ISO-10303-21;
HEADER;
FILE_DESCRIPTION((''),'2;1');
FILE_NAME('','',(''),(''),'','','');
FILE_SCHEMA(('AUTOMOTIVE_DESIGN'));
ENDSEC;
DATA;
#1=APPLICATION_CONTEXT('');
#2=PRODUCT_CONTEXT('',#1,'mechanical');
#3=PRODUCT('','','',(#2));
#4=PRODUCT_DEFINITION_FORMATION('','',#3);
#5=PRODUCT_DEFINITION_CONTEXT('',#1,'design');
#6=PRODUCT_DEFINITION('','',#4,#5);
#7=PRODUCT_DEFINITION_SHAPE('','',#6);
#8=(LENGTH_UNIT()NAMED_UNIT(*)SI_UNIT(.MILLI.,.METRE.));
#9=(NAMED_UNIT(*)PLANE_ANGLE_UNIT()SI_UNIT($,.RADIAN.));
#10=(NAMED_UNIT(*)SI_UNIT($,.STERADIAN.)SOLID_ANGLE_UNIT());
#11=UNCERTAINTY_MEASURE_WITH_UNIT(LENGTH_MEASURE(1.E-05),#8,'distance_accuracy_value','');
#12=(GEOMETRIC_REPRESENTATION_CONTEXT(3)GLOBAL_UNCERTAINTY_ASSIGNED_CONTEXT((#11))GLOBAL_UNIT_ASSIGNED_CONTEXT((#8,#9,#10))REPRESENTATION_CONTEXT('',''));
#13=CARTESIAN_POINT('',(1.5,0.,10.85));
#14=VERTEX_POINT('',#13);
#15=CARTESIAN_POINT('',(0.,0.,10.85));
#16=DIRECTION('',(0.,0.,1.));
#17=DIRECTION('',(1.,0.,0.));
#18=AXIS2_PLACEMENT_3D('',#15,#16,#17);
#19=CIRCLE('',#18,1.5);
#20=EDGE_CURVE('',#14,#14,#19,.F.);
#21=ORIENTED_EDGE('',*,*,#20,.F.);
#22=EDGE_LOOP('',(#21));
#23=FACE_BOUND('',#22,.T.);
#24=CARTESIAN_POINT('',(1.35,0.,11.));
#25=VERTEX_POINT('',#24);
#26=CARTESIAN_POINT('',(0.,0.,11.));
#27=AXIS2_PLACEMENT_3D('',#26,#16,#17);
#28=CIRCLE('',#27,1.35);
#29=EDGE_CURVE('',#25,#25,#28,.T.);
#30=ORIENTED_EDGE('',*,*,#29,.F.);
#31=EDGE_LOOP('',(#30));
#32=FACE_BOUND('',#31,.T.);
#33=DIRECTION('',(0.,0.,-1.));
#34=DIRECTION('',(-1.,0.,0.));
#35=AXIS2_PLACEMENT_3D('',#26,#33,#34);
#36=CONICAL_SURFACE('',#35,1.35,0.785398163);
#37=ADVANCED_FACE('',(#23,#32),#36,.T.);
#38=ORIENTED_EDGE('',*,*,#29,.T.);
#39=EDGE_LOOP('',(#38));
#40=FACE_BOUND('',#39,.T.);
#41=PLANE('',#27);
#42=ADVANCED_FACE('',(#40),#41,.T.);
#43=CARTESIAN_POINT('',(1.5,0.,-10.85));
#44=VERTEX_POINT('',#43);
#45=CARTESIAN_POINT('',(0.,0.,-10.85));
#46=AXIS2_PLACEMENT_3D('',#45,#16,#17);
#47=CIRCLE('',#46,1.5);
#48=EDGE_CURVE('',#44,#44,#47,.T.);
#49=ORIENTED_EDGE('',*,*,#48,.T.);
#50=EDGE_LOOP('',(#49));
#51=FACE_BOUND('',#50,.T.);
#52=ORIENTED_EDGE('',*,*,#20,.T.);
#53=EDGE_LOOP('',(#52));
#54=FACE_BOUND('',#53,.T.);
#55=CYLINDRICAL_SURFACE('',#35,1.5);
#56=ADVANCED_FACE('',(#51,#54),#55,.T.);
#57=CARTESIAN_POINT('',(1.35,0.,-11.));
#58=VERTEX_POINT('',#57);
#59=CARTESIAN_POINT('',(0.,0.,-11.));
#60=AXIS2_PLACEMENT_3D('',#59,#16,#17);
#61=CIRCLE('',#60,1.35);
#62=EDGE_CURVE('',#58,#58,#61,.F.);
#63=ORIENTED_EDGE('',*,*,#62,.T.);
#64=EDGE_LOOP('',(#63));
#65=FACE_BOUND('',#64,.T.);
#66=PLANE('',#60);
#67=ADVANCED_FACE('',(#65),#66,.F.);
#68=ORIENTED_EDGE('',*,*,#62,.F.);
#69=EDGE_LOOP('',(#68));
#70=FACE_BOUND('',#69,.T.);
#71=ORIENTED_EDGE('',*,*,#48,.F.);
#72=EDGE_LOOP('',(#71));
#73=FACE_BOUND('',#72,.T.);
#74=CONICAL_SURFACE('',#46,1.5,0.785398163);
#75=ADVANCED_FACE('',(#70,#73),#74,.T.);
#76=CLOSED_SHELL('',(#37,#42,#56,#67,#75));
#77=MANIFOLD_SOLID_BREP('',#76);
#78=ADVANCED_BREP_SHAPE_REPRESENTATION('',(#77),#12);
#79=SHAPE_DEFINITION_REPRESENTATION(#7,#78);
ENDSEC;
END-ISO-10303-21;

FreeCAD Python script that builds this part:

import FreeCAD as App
import Part
import Sketcher


def edges_at(feature, points):
    """Names of the edges that pass closest to the given points."""
    edges = feature.Shape.Edges
    near = lambda p: min(range(len(edges)), key=lambda i: edges[i].distToShape(Part.Vertex(*p))[0])
    return sorted({f"Edge{near(p) + 1}" for p in points})

doc = App.newDocument("Part")
body = doc.addObject("PartDesign::Body", "Body")

# Sketch on XY plane
sketch1 = body.newObject("Sketcher::SketchObject", "Sketch")
sketch1.AttachmentSupport = (doc.getObject("XY_Plane"), [""])
sketch1.MapMode = "FlatFace"
sketch1.addGeometry(Part.Circle(App.Vector(0, 0, 0), App.Vector(0, 0, 1), 1.5), False)
sketch1.addConstraint([
    Sketcher.Constraint("Coincident", 0, 3, -1, 1),
    Sketcher.Constraint("Diameter", 0, 3.0),
])
pad1 = body.newObject("PartDesign::Pad", "Pad")
pad1.Profile = sketch1
pad1.Length = 22
pad1.Midplane = True
doc.recompute()

chamfer = body.newObject("PartDesign::Chamfer", "Chamfer")
chamfer.Base = (pad1, edges_at(pad1, [(-1.5, 0, -11), (-1.5, 0, 11)]))
chamfer.Size = 0.15

doc.recompute()
